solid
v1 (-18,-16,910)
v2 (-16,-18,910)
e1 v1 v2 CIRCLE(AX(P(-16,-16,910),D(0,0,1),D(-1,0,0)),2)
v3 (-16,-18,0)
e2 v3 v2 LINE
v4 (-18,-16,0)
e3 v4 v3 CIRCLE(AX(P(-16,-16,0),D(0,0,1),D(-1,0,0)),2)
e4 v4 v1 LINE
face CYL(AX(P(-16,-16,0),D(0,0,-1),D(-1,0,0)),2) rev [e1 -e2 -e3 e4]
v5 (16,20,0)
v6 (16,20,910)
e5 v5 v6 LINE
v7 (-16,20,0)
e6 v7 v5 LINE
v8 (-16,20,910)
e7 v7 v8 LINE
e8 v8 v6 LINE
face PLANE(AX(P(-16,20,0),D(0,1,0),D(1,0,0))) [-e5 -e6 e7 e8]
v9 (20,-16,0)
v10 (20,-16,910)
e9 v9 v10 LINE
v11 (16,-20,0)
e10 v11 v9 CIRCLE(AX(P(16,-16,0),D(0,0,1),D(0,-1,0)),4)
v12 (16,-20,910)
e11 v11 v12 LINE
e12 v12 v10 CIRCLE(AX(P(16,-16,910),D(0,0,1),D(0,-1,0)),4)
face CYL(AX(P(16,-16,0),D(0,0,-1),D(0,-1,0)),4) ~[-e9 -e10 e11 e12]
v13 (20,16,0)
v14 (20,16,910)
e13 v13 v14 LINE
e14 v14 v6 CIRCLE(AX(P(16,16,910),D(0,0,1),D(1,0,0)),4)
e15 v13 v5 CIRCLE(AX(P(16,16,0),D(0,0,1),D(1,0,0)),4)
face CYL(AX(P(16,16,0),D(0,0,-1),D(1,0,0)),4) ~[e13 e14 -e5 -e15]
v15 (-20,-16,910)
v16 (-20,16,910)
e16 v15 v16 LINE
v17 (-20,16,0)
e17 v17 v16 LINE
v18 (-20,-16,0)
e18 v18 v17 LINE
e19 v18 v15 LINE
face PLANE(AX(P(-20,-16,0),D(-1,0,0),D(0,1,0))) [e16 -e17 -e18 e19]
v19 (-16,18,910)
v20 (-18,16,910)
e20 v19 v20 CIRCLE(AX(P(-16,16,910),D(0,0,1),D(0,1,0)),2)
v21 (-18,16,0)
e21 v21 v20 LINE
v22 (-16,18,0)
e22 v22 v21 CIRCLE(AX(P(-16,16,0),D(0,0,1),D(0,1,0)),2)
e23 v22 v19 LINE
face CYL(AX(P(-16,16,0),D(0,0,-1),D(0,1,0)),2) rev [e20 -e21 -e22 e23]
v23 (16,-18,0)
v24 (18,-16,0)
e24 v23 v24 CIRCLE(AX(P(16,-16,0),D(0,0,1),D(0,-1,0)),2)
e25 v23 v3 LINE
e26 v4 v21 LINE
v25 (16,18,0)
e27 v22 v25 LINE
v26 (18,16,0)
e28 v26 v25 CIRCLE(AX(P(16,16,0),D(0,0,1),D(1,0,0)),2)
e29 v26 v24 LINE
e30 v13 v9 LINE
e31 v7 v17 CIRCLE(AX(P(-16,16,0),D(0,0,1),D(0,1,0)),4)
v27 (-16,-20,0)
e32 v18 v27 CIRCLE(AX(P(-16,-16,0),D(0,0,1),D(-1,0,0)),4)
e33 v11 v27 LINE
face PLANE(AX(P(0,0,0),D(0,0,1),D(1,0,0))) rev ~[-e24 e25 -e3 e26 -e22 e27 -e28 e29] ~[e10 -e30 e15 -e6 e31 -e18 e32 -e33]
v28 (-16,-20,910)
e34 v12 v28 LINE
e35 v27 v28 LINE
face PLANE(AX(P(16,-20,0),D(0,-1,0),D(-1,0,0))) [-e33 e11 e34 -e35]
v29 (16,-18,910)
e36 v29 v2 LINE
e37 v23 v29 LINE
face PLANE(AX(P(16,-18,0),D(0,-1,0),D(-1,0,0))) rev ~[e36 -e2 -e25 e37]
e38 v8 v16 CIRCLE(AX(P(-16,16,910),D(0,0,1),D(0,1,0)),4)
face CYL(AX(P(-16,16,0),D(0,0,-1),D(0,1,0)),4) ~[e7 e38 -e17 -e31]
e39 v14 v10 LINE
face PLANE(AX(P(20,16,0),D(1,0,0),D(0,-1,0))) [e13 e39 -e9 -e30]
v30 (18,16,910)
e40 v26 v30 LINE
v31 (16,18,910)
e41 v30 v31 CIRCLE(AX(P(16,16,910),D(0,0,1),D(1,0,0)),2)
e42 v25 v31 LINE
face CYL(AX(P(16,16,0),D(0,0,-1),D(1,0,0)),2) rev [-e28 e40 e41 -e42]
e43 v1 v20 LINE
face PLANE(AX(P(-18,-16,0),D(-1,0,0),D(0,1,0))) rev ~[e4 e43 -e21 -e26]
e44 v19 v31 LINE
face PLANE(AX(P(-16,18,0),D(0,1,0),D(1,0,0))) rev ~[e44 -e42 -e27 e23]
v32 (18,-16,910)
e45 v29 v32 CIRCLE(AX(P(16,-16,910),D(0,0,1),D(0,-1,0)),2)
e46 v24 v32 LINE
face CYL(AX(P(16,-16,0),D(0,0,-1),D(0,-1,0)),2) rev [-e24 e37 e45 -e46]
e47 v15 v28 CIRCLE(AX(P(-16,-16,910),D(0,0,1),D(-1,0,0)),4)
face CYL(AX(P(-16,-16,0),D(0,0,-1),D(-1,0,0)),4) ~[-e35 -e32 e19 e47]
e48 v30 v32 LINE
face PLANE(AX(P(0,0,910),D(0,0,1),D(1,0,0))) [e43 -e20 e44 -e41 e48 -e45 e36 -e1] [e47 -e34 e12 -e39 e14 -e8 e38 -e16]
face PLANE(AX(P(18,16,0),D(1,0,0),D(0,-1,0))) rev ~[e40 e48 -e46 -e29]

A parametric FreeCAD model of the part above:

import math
import FreeCAD as App
import Part
import Sketcher

V = App.Vector

doc = App.newDocument("Part")
body = doc.addObject("PartDesign::Body", "Body")

# Sketch on XY plane
sketch1 = body.newObject("Sketcher::SketchObject", "Sketch")
sketch1.AttachmentSupport = (doc.getObject("XY_Plane"), [""])
sketch1.MapMode = "FlatFace"
sketch1.addGeometry(Part.LineSegment(V(-20, 16, 0), V(-20, -16, 0)), False)
sketch1.addGeometry(Part.ArcOfCircle(Part.Circle(V(-16, -16, 0), V(0, 0, 1), 4), math.radians(180), math.radians(270)), False)
sketch1.addGeometry(Part.LineSegment(V(-16, -20, 0), V(16, -20, 0)), False)
sketch1.addGeometry(Part.ArcOfCircle(Part.Circle(V(16, -16, 0), V(0, 0, 1), 4), math.radians(-90), math.radians(0)), False)
sketch1.addGeometry(Part.LineSegment(V(20, -16, 0), V(20, 16, 0)), False)
sketch1.addGeometry(Part.ArcOfCircle(Part.Circle(V(16, 16, 0), V(0, 0, 1), 4), math.radians(0), math.radians(90)), False)
sketch1.addGeometry(Part.LineSegment(V(16, 20, 0), V(-16, 20, 0)), False)
sketch1.addGeometry(Part.ArcOfCircle(Part.Circle(V(-16, 16, 0), V(0, 0, 1), 4), math.radians(90), math.radians(180)), False)
sketch1.addGeometry(Part.ArcOfCircle(Part.Circle(V(-16, 16, 0), V(0, 0, 1), 2), math.radians(90), math.radians(180)), False)
sketch1.addGeometry(Part.LineSegment(V(-16, 18, 0), V(16, 18, 0)), False)
sketch1.addGeometry(Part.ArcOfCircle(Part.Circle(V(16, 16, 0), V(0, 0, 1), 2), math.radians(0), math.radians(90)), False)
sketch1.addGeometry(Part.LineSegment(V(18, 16, 0), V(18, -16, 0)), False)
sketch1.addGeometry(Part.ArcOfCircle(Part.Circle(V(16, -16, 0), V(0, 0, 1), 2), math.radians(-90), math.radians(0)), False)
sketch1.addGeometry(Part.LineSegment(V(16, -18, 0), V(-16, -18, 0)), False)
sketch1.addGeometry(Part.ArcOfCircle(Part.Circle(V(-16, -16, 0), V(0, 0, 1), 2), math.radians(180), math.radians(270)), False)
sketch1.addGeometry(Part.LineSegment(V(-18, -16, 0), V(-18, 16, 0)), False)
sketch1.addConstraint(Sketcher.Constraint("Tangent", 0, 2, 1, 1))
sketch1.addConstraint(Sketcher.Constraint("Tangent", 1, 2, 2, 1))
sketch1.addConstraint(Sketcher.Constraint("Tangent", 2, 2, 3, 1))
sketch1.addConstraint(Sketcher.Constraint("Tangent", 3, 2, 4, 1))
sketch1.addConstraint(Sketcher.Constraint("Tangent", 4, 2, 5, 1))
sketch1.addConstraint(Sketcher.Constraint("Tangent", 5, 2, 6, 1))
sketch1.addConstraint(Sketcher.Constraint("Tangent", 6, 2, 7, 1))
sketch1.addConstraint(Sketcher.Constraint("Tangent", 7, 2, 0, 1))
sketch1.addConstraint(Sketcher.Constraint("Tangent", 8, 1, 9, 1))
sketch1.addConstraint(Sketcher.Constraint("Tangent", 9, 2, 10, 2))
sketch1.addConstraint(Sketcher.Constraint("Tangent", 10, 1, 11, 1))
sketch1.addConstraint(Sketcher.Constraint("Tangent", 11, 2, 12, 2))
sketch1.addConstraint(Sketcher.Constraint("Tangent", 12, 1, 13, 1))
sketch1.addConstraint(Sketcher.Constraint("Tangent", 13, 2, 14, 2))
sketch1.addConstraint(Sketcher.Constraint("Tangent", 14, 1, 15, 1))
sketch1.addConstraint(Sketcher.Constraint("Tangent", 15, 2, 8, 2))
sketch1.addConstraint(Sketcher.Constraint("Vertical", 0))
sketch1.addConstraint(Sketcher.Constraint("Horizontal", 2))
sketch1.addConstraint(Sketcher.Constraint("Vertical", 4))
sketch1.addConstraint(Sketcher.Constraint("Horizontal", 6))
sketch1.addConstraint(Sketcher.Constraint("Horizontal", 9))
sketch1.addConstraint(Sketcher.Constraint("Vertical", 11))
sketch1.addConstraint(Sketcher.Constraint("Horizontal", 13))
sketch1.addConstraint(Sketcher.Constraint("Vertical", 15))
sketch1.addConstraint(Sketcher.Constraint("Coincident", 8, 3, 7, 3))
sketch1.addConstraint(Sketcher.Constraint("Coincident", 10, 3, 5, 3))
sketch1.addConstraint(Sketcher.Constraint("Coincident", 12, 3, 3, 3))
sketch1.addConstraint(Sketcher.Constraint("Equal", 1, 3))
sketch1.addConstraint(Sketcher.Constraint("Equal", 3, 5))
sketch1.addConstraint(Sketcher.Constraint("Equal", 5, 7))
sketch1.addConstraint(Sketcher.Constraint("Equal", 12, 14))
sketch1.addConstraint(Sketcher.Constraint("Symmetric", 1, 3, 5, 3, -1, 1))
sketch1.addConstraint(Sketcher.Constraint("Equal", 13, 0))
sketch1.addConstraint(Sketcher.Constraint("Radius", 1, 4.0))
sketch1.addConstraint(Sketcher.Constraint("Radius", 8, 2.0))
sketch1.addConstraint(Sketcher.Constraint("DistanceX", 0, 2, -1, 1, 20.0))
pad1 = body.newObject("PartDesign::Pad", "Pad")
pad1.Profile = sketch1
pad1.Length = 910

doc.recompute()
